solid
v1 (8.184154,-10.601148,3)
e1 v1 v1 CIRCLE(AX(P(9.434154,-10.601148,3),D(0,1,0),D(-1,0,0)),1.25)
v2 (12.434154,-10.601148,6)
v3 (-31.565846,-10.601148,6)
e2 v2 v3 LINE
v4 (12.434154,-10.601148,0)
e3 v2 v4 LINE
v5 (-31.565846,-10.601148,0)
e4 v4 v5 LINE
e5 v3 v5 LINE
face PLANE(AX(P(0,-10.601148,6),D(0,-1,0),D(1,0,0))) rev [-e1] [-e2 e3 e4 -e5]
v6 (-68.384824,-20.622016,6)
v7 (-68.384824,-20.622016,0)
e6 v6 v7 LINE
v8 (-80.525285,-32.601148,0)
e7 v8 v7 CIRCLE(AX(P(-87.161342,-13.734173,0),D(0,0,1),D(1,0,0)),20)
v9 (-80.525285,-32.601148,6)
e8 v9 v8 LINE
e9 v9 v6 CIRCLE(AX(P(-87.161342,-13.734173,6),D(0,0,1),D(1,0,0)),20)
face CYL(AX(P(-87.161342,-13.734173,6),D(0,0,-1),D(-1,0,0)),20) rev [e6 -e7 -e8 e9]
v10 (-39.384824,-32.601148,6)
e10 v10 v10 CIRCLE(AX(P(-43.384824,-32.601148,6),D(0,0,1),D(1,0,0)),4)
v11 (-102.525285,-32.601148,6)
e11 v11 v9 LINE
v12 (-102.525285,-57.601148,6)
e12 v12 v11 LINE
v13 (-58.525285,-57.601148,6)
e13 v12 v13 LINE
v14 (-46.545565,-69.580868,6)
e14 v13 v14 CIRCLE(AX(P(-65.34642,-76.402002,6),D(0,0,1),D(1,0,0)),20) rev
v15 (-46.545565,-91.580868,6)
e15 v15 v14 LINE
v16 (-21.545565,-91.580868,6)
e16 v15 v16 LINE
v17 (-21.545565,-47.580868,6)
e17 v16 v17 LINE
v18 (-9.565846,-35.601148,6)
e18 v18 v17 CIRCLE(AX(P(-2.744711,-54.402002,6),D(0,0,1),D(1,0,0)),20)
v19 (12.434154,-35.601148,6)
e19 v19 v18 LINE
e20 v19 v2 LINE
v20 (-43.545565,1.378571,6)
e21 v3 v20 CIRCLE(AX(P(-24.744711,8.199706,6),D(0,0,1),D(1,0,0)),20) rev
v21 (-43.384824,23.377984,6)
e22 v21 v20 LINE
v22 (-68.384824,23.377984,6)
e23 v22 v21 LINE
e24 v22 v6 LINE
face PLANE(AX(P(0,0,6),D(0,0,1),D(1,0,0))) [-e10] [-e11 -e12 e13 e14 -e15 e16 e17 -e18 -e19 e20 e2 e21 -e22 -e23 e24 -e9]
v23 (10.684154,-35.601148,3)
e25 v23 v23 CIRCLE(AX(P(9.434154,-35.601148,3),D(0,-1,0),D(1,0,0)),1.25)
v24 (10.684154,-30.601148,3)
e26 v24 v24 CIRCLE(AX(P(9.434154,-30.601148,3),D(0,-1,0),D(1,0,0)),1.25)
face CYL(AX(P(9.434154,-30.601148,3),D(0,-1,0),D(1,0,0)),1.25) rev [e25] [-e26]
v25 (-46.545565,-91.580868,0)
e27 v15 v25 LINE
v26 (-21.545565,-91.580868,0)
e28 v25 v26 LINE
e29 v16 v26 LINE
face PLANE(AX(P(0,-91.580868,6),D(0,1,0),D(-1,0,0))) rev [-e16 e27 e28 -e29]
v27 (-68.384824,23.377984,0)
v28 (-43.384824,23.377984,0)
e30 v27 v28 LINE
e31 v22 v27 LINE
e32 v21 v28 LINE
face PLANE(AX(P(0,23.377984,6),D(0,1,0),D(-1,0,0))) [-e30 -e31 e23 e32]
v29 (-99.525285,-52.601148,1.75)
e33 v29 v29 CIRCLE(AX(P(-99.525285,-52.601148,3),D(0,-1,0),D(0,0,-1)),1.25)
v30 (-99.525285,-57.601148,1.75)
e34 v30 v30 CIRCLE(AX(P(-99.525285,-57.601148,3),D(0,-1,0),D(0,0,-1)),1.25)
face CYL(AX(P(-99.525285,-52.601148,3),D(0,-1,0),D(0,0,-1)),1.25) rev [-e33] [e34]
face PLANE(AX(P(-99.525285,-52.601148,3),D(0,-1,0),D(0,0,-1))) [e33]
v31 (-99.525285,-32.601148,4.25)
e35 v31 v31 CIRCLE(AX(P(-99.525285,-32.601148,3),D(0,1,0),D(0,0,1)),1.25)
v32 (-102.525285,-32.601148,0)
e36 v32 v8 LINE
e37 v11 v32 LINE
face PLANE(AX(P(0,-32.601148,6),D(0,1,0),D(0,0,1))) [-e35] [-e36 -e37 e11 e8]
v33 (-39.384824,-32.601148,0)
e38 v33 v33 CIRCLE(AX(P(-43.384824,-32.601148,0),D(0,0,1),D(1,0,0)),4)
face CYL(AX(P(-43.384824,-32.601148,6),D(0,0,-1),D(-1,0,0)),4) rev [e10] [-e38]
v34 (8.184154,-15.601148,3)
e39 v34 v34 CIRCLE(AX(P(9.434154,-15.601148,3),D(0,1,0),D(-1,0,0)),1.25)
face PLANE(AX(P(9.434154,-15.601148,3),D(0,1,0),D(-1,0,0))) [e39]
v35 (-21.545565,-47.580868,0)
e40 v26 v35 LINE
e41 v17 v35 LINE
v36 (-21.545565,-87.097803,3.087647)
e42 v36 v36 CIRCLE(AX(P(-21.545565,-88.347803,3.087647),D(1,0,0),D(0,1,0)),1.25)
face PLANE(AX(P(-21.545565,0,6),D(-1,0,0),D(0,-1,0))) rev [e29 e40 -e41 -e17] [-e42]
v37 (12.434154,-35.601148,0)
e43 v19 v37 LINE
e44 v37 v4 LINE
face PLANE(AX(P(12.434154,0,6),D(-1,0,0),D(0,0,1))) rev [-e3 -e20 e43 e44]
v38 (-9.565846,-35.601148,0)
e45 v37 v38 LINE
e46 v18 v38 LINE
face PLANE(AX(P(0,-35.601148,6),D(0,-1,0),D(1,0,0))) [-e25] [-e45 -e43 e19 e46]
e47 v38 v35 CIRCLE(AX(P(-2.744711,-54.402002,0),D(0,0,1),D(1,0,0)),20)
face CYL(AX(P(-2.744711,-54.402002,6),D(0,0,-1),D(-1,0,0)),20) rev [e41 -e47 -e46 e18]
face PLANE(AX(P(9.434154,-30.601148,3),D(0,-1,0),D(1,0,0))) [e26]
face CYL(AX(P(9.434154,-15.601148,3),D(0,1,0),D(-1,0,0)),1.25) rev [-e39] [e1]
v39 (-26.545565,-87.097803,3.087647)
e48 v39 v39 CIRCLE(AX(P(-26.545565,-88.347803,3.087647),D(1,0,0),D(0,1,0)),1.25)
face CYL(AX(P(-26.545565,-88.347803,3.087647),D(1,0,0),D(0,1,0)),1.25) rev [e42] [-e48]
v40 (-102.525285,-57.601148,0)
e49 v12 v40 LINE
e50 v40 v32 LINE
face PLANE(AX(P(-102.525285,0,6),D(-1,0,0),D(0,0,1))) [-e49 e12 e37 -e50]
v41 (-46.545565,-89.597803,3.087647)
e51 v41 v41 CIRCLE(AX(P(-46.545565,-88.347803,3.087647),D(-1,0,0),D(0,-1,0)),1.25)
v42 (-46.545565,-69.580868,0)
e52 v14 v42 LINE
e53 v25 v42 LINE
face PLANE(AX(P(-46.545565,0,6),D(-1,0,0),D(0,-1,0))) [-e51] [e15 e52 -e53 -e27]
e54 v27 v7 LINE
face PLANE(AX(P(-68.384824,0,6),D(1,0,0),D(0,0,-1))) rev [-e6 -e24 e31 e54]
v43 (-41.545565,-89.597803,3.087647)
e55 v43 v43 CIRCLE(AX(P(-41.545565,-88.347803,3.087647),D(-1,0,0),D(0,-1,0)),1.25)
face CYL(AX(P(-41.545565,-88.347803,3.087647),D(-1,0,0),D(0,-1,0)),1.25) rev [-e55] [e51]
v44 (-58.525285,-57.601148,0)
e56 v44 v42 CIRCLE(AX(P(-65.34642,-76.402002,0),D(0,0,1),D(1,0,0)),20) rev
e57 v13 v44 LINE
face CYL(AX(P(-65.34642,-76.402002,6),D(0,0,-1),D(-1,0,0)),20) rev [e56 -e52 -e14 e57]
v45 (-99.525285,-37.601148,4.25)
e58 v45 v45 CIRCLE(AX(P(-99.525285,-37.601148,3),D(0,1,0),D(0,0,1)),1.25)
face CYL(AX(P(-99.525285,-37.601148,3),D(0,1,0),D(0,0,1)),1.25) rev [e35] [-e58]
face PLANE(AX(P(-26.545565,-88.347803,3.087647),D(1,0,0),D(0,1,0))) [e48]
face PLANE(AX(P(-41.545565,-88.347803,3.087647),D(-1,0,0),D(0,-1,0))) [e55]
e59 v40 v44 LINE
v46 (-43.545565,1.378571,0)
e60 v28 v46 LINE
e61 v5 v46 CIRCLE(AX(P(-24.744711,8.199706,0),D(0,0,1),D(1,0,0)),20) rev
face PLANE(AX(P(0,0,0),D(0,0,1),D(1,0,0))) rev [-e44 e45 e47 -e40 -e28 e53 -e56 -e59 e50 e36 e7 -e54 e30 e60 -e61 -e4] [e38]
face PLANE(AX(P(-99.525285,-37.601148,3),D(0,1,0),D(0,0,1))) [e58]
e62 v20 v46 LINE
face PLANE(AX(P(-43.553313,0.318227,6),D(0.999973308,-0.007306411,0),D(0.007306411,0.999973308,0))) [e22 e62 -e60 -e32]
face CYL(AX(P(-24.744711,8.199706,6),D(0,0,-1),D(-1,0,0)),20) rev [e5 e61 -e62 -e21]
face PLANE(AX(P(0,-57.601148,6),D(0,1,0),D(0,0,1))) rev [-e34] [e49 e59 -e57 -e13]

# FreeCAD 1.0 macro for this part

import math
import FreeCAD as App
import Part
import Sketcher

V = App.Vector
Q = App.Units.Quantity

doc = App.newDocument("Part")
body = doc.addObject("PartDesign::Body", "Body")

sketch1 = body.newObject("Sketcher::SketchObject", "Sketch")
sketch1.AttachmentSupport = (doc.getObject("XY_Plane"), [""])
sketch1.MapMode = "FlatFace"
sketch1.addGeometry(Part.LineSegment(V(-102.5, -32.6, 0), V(-102.5, -57.6, 0)), False)
sketch1.addGeometry(Part.LineSegment(V(-102.5, -57.6, 0), V(-58.5, -57.6, 0)), False)
sketch1.addGeometry(Part.ArcOfCircle(Part.Circle(V(-65.3, -76.4, 0), V(0, 0, 1), 20), math.radians(20), math.radians(70)), False)
sketch1.addGeometry(Part.LineSegment(V(-46.5, -69.6, 0), V(-46.5, -91.6, 0)), False)
sketch1.addGeometry(Part.LineSegment(V(-46.5, -91.6, 0), V(-21.5, -91.6, 0)), False)
sketch1.addGeometry(Part.LineSegment(V(-21.5, -91.6, 0), V(-21.5, -47.6, 0)), False)
sketch1.addGeometry(Part.ArcOfCircle(Part.Circle(V(-2.7, -54.4, 0), V(0, 0, 1), 20), math.radians(110), math.radians(160)), False)
sketch1.addGeometry(Part.LineSegment(V(-9.6, -35.6, 0), V(12.4, -35.6, 0)), False)
sketch1.addGeometry(Part.LineSegment(V(12.4, -35.6, 0), V(12.4, -10.6, 0)), False)
sketch1.addGeometry(Part.LineSegment(V(12.4, -10.6, 0), V(-31.6, -10.6, 0)), False)
sketch1.addGeometry(Part.ArcOfCircle(Part.Circle(V(-24.7, 8.2, 0), V(0, 0, 1), 20), math.radians(-160), math.radians(-110)), False)
sketch1.addGeometry(Part.LineSegment(V(-43.5, 1.4, 0), V(-43.4, 23.4, 0)), False)
sketch1.addGeometry(Part.LineSegment(V(-43.4, 23.4, 0), V(-68.4, 23.4, 0)), False)
sketch1.addGeometry(Part.LineSegment(V(-68.4, 23.4, 0), V(-68.4, -20.6, 0)), False)
sketch1.addGeometry(Part.ArcOfCircle(Part.Circle(V(-87.2, -13.7, 0), V(0, 0, 1), 20), math.radians(-71), math.radians(-20)), False)
sketch1.addGeometry(Part.LineSegment(V(-80.5, -32.6, 0), V(-102.5, -32.6, 0)), False)
sketch1.addGeometry(Part.Circle(V(-43.4, -32.6, 0), V(0, 0, 1), 4), False)
sketch1.addConstraint(Sketcher.Constraint("Coincident", 0, 2, 1, 1))
sketch1.addConstraint(Sketcher.Constraint("Coincident", 1, 2, 2, 2))
sketch1.addConstraint(Sketcher.Constraint("Coincident", 2, 1, 3, 1))
sketch1.addConstraint(Sketcher.Constraint("Coincident", 3, 2, 4, 1))
sketch1.addConstraint(Sketcher.Constraint("Coincident", 4, 2, 5, 1))
sketch1.addConstraint(Sketcher.Constraint("Coincident", 5, 2, 6, 2))
sketch1.addConstraint(Sketcher.Constraint("Coincident", 6, 1, 7, 1))
sketch1.addConstraint(Sketcher.Constraint("Coincident", 7, 2, 8, 1))
sketch1.addConstraint(Sketcher.Constraint("Coincident", 8, 2, 9, 1))
sketch1.addConstraint(Sketcher.Constraint("Coincident", 9, 2, 10, 2))
sketch1.addConstraint(Sketcher.Constraint("Coincident", 10, 1, 11, 1))
sketch1.addConstraint(Sketcher.Constraint("Coincident", 11, 2, 12, 1))
sketch1.addConstraint(Sketcher.Constraint("Coincident", 12, 2, 13, 1))
sketch1.addConstraint(Sketcher.Constraint("Coincident", 13, 2, 14, 2))
sketch1.addConstraint(Sketcher.Constraint("Coincident", 14, 1, 15, 1))
sketch1.addConstraint(Sketcher.Constraint("Coincident", 15, 2, 0, 1))
sketch1.addConstraint(Sketcher.Constraint("Vertical", 0))
sketch1.addConstraint(Sketcher.Constraint("Horizontal", 1))
sketch1.addConstraint(Sketcher.Constraint("Vertical", 3))
sketch1.addConstraint(Sketcher.Constraint("Horizontal", 4))
sketch1.addConstraint(Sketcher.Constraint("Vertical", 5))
sketch1.addConstraint(Sketcher.Constraint("Horizontal", 7))
sketch1.addConstraint(Sketcher.Constraint("Vertical", 8))
sketch1.addConstraint(Sketcher.Constraint("Horizontal", 9))
sketch1.addConstraint(Sketcher.Constraint("Horizontal", 12))
sketch1.addConstraint(Sketcher.Constraint("Vertical", 13))
sketch1.addConstraint(Sketcher.Constraint("Horizontal", 15))
sketch1.addConstraint(Sketcher.Constraint("Equal", 2, 6))
sketch1.addConstraint(Sketcher.Constraint("Equal", 6, 10))
sketch1.addConstraint(Sketcher.Constraint("Equal", 10, 14))
sketch1.addConstraint(Sketcher.Constraint("Horizontal", 16, 3, 14, 1))
sketch1.addConstraint(Sketcher.Constraint("Vertical", 16, 3, 11, 2))
sketch1.addConstraint(Sketcher.Constraint("Equal", 1, 9))
sketch1.addConstraint(Sketcher.Constraint("Equal", 4, 12))
sketch1.addConstraint(Sketcher.Constraint("Equal", 7, 15))
sketch1.addConstraint(Sketcher.Constraint("Equal", 12, 0))
sketch1.addConstraint(Sketcher.Constraint("Equal", 15, 3))
sketch1.addConstraint(Sketcher.Constraint("Equal", 9, 5))
sketch1.addConstraint(Sketcher.Constraint("Equal", 0, 8))
sketch1.addConstraint(Sketcher.Constraint("Equal", 5, 13))
sketch1.addConstraint(Sketcher.Constraint("Diameter", 16, Q("8 mm")))
sketch1.addConstraint(Sketcher.Constraint("Radius", 2, Q("20 mm")))
sketch1.addConstraint(Sketcher.Constraint("DistanceX", 1, 1, 1, 2, Q("44 mm")))
sketch1.addConstraint(Sketcher.Constraint("DistanceX", 4, 1, 4, 2, Q("25 mm")))
sketch1.addConstraint(Sketcher.Constraint("DistanceX", 7, 1, 7, 2, Q("22 mm")))
sketch1.addConstraint(Sketcher.Constraint("Distance", 11, Q("22 mm")))
sketch1.addConstraint(Sketcher.Constraint("DistanceY", 2, 3, 6, 3, Q("22 mm")))
sketch1.addConstraint(Sketcher.Constraint("DistanceX", 10, 3, 6, 3, Q("22 mm")))
sketch1.addConstraint(Sketcher.Constraint("DistanceY", 6, 1, 16, 3, Q("3 mm")))
sketch1.addConstraint(Sketcher.Constraint("DistanceX", 2, 3, -1, 1, Q("65.34642 mm")))
sketch1.addConstraint(Sketcher.Constraint("DistanceX", 6, 3, -1, 1, Q("2.744711 mm")))
sketch1.addConstraint(Sketcher.Constraint("DistanceY", 16, 3, -1, 1, Q("32.601148 mm")))
sketch1.addConstraint(Sketcher.Constraint("DistanceY", -1, 1, 10, 1, Q("1.378571 mm")))
sketch1.addConstraint(Sketcher.Constraint("DistanceY", 6, 3, 10, 3, Q("62.601708 mm")))
sketch1.addConstraint(Sketcher.Constraint("DistanceX", 14, 3, 10, 3, Q("62.416631 mm")))
pad1 = body.newObject("PartDesign::Pad", "Pad")
pad1.Profile = sketch1
pad1.Length = 6

sketch2 = body.newObject("Sketcher::SketchObject", "Sketch001")
sketch2.AttachmentSupport = (doc.getObject("XZ_Plane"), [""])
sketch2.MapMode = "FlatFace"
sketch2.AttachmentOffset = App.Placement(V(0, 0, 57.601148), App.Rotation())
sketch2.addGeometry(Part.Circle(V(-99.5, 3, 0), V(0, 0, 1), 1.2), False)
sketch2.addConstraint(Sketcher.Constraint("Diameter", 0, Q("2.5 mm")))
sketch2.addConstraint(Sketcher.Constraint("DistanceY", -1, 1, 0, 3, Q("3 mm")))
sketch2.addConstraint(Sketcher.Constraint("DistanceX", 0, 3, -1, 1, Q("99.525285 mm")))
pocket1 = body.newObject("PartDesign::Pocket", "Pocket")
pocket1.Profile = sketch2
pocket1.Length = 5

sketch3 = body.newObject("Sketcher::SketchObject", "Sketch002")
sketch3.AttachmentSupport = (doc.getObject("XZ_Plane"), [""])
sketch3.MapMode = "FlatFace"
sketch3.AttachmentOffset = App.Placement(V(0, 0, 37.601148), App.Rotation())
sketch3.addGeometry(Part.Circle(V(-99.5, 3, 0), V(0, 0, 1), 1.2), False)
sketch3.addConstraint(Sketcher.Constraint("Diameter", 0, Q("2.5 mm")))
sketch3.addConstraint(Sketcher.Constraint("DistanceY", -1, 1, 0, 3, Q("3 mm")))
sketch3.addConstraint(Sketcher.Constraint("DistanceX", 0, 3, -1, 1, Q("99.525285 mm")))
pocket2 = body.newObject("PartDesign::Pocket", "Pocket001")
pocket2.Profile = sketch3
pocket2.Length = 5

sketch4 = body.newObject("Sketcher::SketchObject", "Sketch003")
sketch4.AttachmentSupport = (doc.getObject("YZ_Plane"), [""])
sketch4.MapMode = "FlatFace"
sketch4.AttachmentOffset = App.Placement(V(0, 0, -21.545565), App.Rotation())
sketch4.addGeometry(Part.Circle(V(-88.3, 3.1, 0), V(0, 0, 1), 1.2), False)
sketch4.addConstraint(Sketcher.Constraint("Diameter", 0, Q("2.5 mm")))
sketch4.addConstraint(Sketcher.Constraint("DistanceX", 0, 3, -1, 1, Q("88.347803 mm")))
sketch4.addConstraint(Sketcher.Constraint("DistanceY", -1, 1, 0, 3, Q("3.087647 mm")))
pocket3 = body.newObject("PartDesign::Pocket", "Pocket002")
pocket3.Profile = sketch4
pocket3.Length = 5

sketch5 = body.newObject("Sketcher::SketchObject", "Sketch004")
sketch5.AttachmentSupport = (doc.getObject("YZ_Plane"), [""])
sketch5.MapMode = "FlatFace"
sketch5.AttachmentOffset = App.Placement(V(0, 0, -41.545565), App.Rotation())
sketch5.addGeometry(Part.Circle(V(-88.3, 3.1, 0), V(0, 0, 1), 1.2), False)
sketch5.addConstraint(Sketcher.Constraint("Diameter", 0, Q("2.5 mm")))
sketch5.addConstraint(Sketcher.Constraint("DistanceX", 0, 3, -1, 1, Q("88.347803 mm")))
sketch5.addConstraint(Sketcher.Constraint("DistanceY", -1, 1, 0, 3, Q("3.087647 mm")))
pocket4 = body.newObject("PartDesign::Pocket", "Pocket003")
pocket4.Profile = sketch5
pocket4.Length = 5

sketch6 = body.newObject("Sketcher::SketchObject", "Sketch005")
sketch6.AttachmentSupport = (doc.getObject("XZ_Plane"), [""])
sketch6.MapMode = "FlatFace"
sketch6.AttachmentOffset = App.Placement(V(0, 0, 10.601148), App.Rotation())
sketch6.addGeometry(Part.Circle(V(9.4, 3, 0), V(0, 0, 1), 1.2), False)
sketch6.addConstraint(Sketcher.Constraint("Diameter", 0, Q("2.5 mm")))
sketch6.addConstraint(Sketcher.Constraint("DistanceY", -1, 1, 0, 3, Q("3 mm")))
sketch6.addConstraint(Sketcher.Constraint("DistanceX", -1, 1, 0, 3, Q("9.434154 mm")))
pocket5 = body.newObject("PartDesign::Pocket", "Pocket004")
pocket5.Profile = sketch6
pocket5.Length = 5
pocket5.Reversed = True

sketch7 = body.newObject("Sketcher::SketchObject", "Sketch006")
sketch7.AttachmentSupport = (doc.getObject("XZ_Plane"), [""])
sketch7.MapMode = "FlatFace"
sketch7.AttachmentOffset = App.Placement(V(0, 0, 30.601148), App.Rotation())
sketch7.addGeometry(Part.Circle(V(9.4, 3, 0), V(0, 0, 1), 1.2), False)
sketch7.addConstraint(Sketcher.Constraint("Diameter", 0, Q("2.5 mm")))
sketch7.addConstraint(Sketcher.Constraint("DistanceY", -1, 1, 0, 3, Q("3 mm")))
sketch7.addConstraint(Sketcher.Constraint("DistanceX", -1, 1, 0, 3, Q("9.434154 mm")))
pocket6 = body.newObject("PartDesign::Pocket", "Pocket005")
pocket6.Profile = sketch7
pocket6.Length = 5
pocket6.Reversed = True

doc.recompute()
